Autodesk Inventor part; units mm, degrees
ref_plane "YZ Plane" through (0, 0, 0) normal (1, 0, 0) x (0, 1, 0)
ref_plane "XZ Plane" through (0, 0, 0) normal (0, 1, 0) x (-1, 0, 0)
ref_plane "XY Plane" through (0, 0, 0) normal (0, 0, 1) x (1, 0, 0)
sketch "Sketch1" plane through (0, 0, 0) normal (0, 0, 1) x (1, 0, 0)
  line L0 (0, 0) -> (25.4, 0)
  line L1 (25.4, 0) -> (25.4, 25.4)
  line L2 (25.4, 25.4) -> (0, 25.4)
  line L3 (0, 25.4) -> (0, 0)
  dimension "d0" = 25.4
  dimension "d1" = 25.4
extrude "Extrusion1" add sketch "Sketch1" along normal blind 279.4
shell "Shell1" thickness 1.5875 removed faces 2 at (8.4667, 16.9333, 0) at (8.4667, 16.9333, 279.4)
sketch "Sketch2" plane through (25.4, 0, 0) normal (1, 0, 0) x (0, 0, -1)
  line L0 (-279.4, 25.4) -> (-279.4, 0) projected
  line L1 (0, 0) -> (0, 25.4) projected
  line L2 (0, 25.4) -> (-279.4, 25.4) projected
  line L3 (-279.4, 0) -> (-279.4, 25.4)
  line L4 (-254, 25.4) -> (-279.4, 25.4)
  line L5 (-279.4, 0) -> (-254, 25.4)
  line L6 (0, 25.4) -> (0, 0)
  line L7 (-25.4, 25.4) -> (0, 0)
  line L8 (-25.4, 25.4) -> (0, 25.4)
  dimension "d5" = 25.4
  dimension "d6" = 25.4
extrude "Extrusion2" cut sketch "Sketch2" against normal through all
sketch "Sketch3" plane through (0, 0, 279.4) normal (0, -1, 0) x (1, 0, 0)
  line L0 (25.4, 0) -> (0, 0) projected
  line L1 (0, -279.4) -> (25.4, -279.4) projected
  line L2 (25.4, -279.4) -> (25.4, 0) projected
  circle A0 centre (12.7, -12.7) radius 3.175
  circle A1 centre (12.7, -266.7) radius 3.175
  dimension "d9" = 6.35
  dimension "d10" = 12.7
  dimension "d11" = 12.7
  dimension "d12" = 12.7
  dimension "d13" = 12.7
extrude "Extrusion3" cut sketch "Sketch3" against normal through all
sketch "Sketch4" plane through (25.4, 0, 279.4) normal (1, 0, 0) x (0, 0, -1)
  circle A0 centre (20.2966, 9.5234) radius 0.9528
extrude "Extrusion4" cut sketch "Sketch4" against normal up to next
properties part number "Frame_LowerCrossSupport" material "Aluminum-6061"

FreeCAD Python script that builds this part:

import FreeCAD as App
import Part
import Sketcher

V = App.Vector
Q = App.Units.Quantity


def faces_at(feature, points):
    """Names of the faces that lie closest to the given points."""
    faces = feature.Shape.Faces
    near = lambda p: min(range(len(faces)), key=lambda i: faces[i].distToShape(Part.Vertex(*p))[0])
    return sorted({f"Face{near(p) + 1}" for p in points})


def add_polygon(sketch, points):
    """Adds a closed chain of lines whose ends are joined by coincident constraints."""
    first, n = sketch.GeometryCount, len(points)
    for a, b in zip(points, points[1:] + points[:1]):
        sketch.addGeometry(Part.LineSegment(App.Vector(*a, 0), App.Vector(*b, 0)), False)
    for i in range(n):
        sketch.addConstraint(Sketcher.Constraint("Coincident", first + i, 2, first + (i + 1) % n, 1))

doc = App.newDocument("Part")
body = doc.addObject("PartDesign::Body", "Body")

# Sketch on XY plane
sketch1 = body.newObject("Sketcher::SketchObject", "Sketch")
sketch1.AttachmentSupport = (doc.getObject("XY_Plane"), [""])
sketch1.MapMode = "FlatFace"
add_polygon(sketch1, [(0, 25.4), (0, 0), (25.4, 0), (25.4, 25.4)])  # lines 0-3
sketch1.addConstraint([
    Sketcher.Constraint("Vertical", 0),
    Sketcher.Constraint("Horizontal", 1),
    Sketcher.Constraint("Vertical", 2),
    Sketcher.Constraint("Horizontal", 3),
    Sketcher.Constraint("Coincident", 0, 2, -1, 1),
    Sketcher.Constraint("Equal", 3, 0),
    Sketcher.Constraint("DistanceX", 1, 1, 1, 2, Q("1 in")),
])
pad1 = body.newObject("PartDesign::Pad", "Pad")
pad1.Profile = sketch1
pad1.Length = Q("11 in")
doc.recompute()

thickness = body.newObject("PartDesign::Thickness", "Thickness")
thickness.Base = (pad1, faces_at(pad1, [(8.467, 16.933, 0), (8.467, 16.933, 279.4)]))
thickness.Value = Q("0.0625 in")
thickness.Reversed = True
thickness.Join = "Intersection"

# Sketch on YZ plane
sketch2 = body.newObject("Sketcher::SketchObject", "Sketch001")
sketch2.AttachmentSupport = (doc.getObject("YZ_Plane"), [""])
sketch2.MapMode = "FlatFace"
sketch2.AttachmentOffset = App.Placement(V(0, 0, 1 * 25.4), App.Rotation())
add_polygon(sketch2, [(25.4, 254), (25.4, 279.4), (0, 279.4)])  # lines 0-2
add_polygon(sketch2, [(25.4, 0), (25.4, 25.4), (0, 0)])  # lines 3-5
sketch2.addConstraint([
    Sketcher.Constraint("Vertical", 0),
    Sketcher.Constraint("Horizontal", 1),
    Sketcher.Constraint("Vertical", 3),
    Sketcher.Constraint("Horizontal", 5),
    Sketcher.Constraint("Coincident", 4, 2, -1, 1),
    Sketcher.Constraint("PointOnObject", 1, 2, -2),
    Sketcher.Constraint("Perpendicular", 2, 4),
    Sketcher.Constraint("Vertical", 2, 2, 3, 2),
    Sketcher.Constraint("Equal", 5, 0),
    Sketcher.Constraint("DistanceX", 1, 2, 1, 1, Q("1 in")),
    Sketcher.Constraint("DistanceY", -1, 1, 0, 2, Q("11 in")),
])
pocket1 = body.newObject("PartDesign::Pocket", "Pocket")
pocket1.Profile = sketch2
pocket1.Type = "ThroughAll"

# Sketch on XZ plane
sketch3 = body.newObject("Sketcher::SketchObject", "Sketch002")
sketch3.AttachmentSupport = (doc.getObject("XZ_Plane"), [""])
sketch3.MapMode = "FlatFace"
sketch3.addGeometry([
    Part.Circle(V(12.7, 266.7, 0), V(0, 0, 1), 3.175),
    Part.Circle(V(12.7, 12.7, 0), V(0, 0, 1), 3.175),
], False)
sketch3.addConstraint([
    Sketcher.Constraint("Equal", 0, 1),
    Sketcher.Constraint("Vertical", 0, 3, 1, 3),
    Sketcher.Constraint("Diameter", 0, Q("0.25 in")),
    Sketcher.Constraint("DistanceX", -1, 1, 0, 3, Q("0.5 in")),
    Sketcher.Constraint("DistanceY", -1, 1, 1, 3, Q("0.5 in")),
    Sketcher.Constraint("DistanceY", 1, 3, 0, 3, Q("10 in")),
])
pocket2 = body.newObject("PartDesign::Pocket", "Pocket001")
pocket2.Profile = sketch3
pocket2.Type = "ThroughAll"

# Sketch on YZ plane
sketch4 = body.newObject("Sketcher::SketchObject", "Sketch003")
sketch4.AttachmentSupport = (doc.getObject("YZ_Plane"), [""])
sketch4.MapMode = "FlatFace"
sketch4.AttachmentOffset = App.Placement(V(0, 0, 1 * 25.4), App.Rotation())
sketch4.addGeometry(Part.Circle(V(9.5234, 259.1034, 0), V(0, 0, 1), 0.9528), False)
sketch4.addConstraint([
    Sketcher.Constraint("Diameter", 0, Q("1.9056 mm")),
    Sketcher.Constraint("DistanceX", -1, 1, 0, 3, Q("9.5234 mm")),
    Sketcher.Constraint("DistanceY", -1, 1, 0, 3, Q("259.1034 mm")),
])
pocket3 = body.newObject("PartDesign::Pocket", "Pocket002")
pocket3.Profile = sketch4
pocket3.Type = "UpToFirst"

doc.recompute()
